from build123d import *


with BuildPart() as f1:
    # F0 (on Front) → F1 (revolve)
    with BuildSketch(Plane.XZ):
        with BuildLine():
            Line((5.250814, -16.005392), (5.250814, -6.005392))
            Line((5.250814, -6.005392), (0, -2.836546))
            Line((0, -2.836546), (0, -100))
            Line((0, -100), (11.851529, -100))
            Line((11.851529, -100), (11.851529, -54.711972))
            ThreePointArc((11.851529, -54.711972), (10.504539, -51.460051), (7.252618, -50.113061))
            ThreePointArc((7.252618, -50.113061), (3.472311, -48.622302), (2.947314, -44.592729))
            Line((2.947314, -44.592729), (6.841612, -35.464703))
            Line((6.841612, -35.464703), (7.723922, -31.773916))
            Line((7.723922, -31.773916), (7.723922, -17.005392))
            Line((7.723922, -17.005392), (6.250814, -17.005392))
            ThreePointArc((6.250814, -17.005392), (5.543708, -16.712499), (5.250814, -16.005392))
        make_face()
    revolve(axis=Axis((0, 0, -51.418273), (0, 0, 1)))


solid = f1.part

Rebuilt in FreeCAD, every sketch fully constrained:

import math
import FreeCAD as App
import Part
import Sketcher

V = App.Vector

doc = App.newDocument("Part")
params = doc.addObject("Spreadsheet::Sheet", "Params")
for row, (alias, value) in enumerate([
    ("sketch1_radius", "4 mm"),
    ("sketch1_radius2", "1.000001 mm"),
    ("sketch1_height", "10 mm"),
    ("revolution_angle", "360 deg"),
], start=1):
    params.set(f"A{row}", alias)
    params.set(f"B{row}", "=" + value)
    params.setAlias(f"B{row}", alias)

body = doc.addObject("PartDesign::Body", "Body")

# Sketch on XZ plane
sketch1 = body.newObject("Sketcher::SketchObject", "Sketch")
sketch1.AttachmentSupport = (doc.getObject("XZ_Plane"), [""])
sketch1.MapMode = "FlatFace"
sketch1.addGeometry([
    Part.LineSegment(V(5.3, -16, 0), V(5.3, -6, 0)),  # 0
    Part.LineSegment(V(5.3, -6, 0), V(0, -2.8, 0)),  # 1
    Part.LineSegment(V(0, -2.8, 0), V(0, -100, 0)),  # 2
    Part.LineSegment(V(0, -100, 0), V(11.9, -100, 0)),  # 3
    Part.LineSegment(V(11.9, -100, 0), V(11.9, -54.7, 0)),  # 4
    Part.ArcOfCircle(Part.Circle(V(7.3, -54.7, 0), V(0, 0, 1), 4.6), math.radians(0), math.radians(90)),  # 5
    Part.ArcOfCircle(Part.Circle(V(6.6, -46.2, 0), V(0, 0, 1), 4), math.radians(157), math.radians(279)),  # 6
    Part.LineSegment(V(2.9, -44.6, 0), V(6.8, -35.5, 0)),  # 7
    Part.LineSegment(V(6.8, -35.5, 0), V(7.7, -31.8, 0)),  # 8
    Part.LineSegment(V(7.7, -31.8, 0), V(7.7, -17, 0)),  # 9
    Part.LineSegment(V(7.7, -17, 0), V(6.3, -17, 0)),  # 10
    Part.ArcOfCircle(Part.Circle(V(6.3, -16, 0), V(0, 0, 1), 1), math.radians(-180), math.radians(-90)),  # 11
], False)
sketch1.addConstraint([
    Sketcher.Constraint("Coincident", 0, 2, 1, 1),
    Sketcher.Constraint("Coincident", 1, 2, 2, 1),
    Sketcher.Constraint("Coincident", 2, 2, 3, 1),
    Sketcher.Constraint("Coincident", 3, 2, 4, 1),
    Sketcher.Constraint("Tangent", 4, 2, 5, 1),
    Sketcher.Constraint("Coincident", 5, 2, 6, 2),
    Sketcher.Constraint("Tangent", 6, 1, 7, 1),
    Sketcher.Constraint("Coincident", 7, 2, 8, 1),
    Sketcher.Constraint("Coincident", 8, 2, 9, 1),
    Sketcher.Constraint("Coincident", 9, 2, 10, 1),
    Sketcher.Constraint("Tangent", 10, 2, 11, 2),
    Sketcher.Constraint("Tangent", 11, 1, 0, 1),
    Sketcher.Constraint("Vertical", 0),
    Sketcher.Constraint("Vertical", 2),
    Sketcher.Constraint("Horizontal", 3),
    Sketcher.Constraint("Vertical", 4),
    Sketcher.Constraint("Vertical", 9),
    Sketcher.Constraint("Horizontal", 10),
    Sketcher.Constraint("PointOnObject", 1, 2, -2),
    Sketcher.Constraint("Radius", 6, 4.0),
    Sketcher.Constraint("Radius", 11, 1.000001),
    Sketcher.Constraint("DistanceY", 0, 1, 0, 2, 10.0),
    Sketcher.Constraint("DistanceY", 2, 2, -1, 1, 100.0),
    Sketcher.Constraint("Radius", 5, 4.598912),
    Sketcher.Constraint("DistanceX", 3, 1, 3, 2, 11.851529),
    Sketcher.Constraint("DistanceY", 5, 3, 6, 3, 8.5496),
    Sketcher.Constraint("DistanceX", 6, 1, 11, 3, 3.303501),
    Sketcher.Constraint("DistanceX", 6, 1, 7, 2, 3.894298),
    Sketcher.Constraint("DistanceX", 10, 2, 10, 1, 1.473108),
    Sketcher.Constraint("DistanceY", 2, 2, 2, 1, 97.163454),
    Sketcher.Constraint("DistanceY", 4, 1, 4, 2, 45.288028),
    Sketcher.Constraint("DistanceY", 9, 1, 9, 2, 14.768524),
    Sketcher.Constraint("DistanceY", 11, 3, -1, 1, 16.005391),
    Sketcher.Constraint("DistanceY", 6, 1, -1, 1, 44.592729),
    Sketcher.Constraint("DistanceX", -1, 1, 7, 2, 6.841612),
])
sketch1.setExpression("Constraints[19]", "Params.sketch1_radius")
sketch1.setExpression("Constraints[20]", "Params.sketch1_radius2")
sketch1.setExpression("Constraints[21]", "Params.sketch1_height")
revolution = body.newObject("PartDesign::Revolution", "Revolution")
revolution.Profile = sketch1
revolution.ReferenceAxis = (sketch1, ["V_Axis"])
revolution.setExpression("Angle", "Params.revolution_angle")

doc.recompute()
